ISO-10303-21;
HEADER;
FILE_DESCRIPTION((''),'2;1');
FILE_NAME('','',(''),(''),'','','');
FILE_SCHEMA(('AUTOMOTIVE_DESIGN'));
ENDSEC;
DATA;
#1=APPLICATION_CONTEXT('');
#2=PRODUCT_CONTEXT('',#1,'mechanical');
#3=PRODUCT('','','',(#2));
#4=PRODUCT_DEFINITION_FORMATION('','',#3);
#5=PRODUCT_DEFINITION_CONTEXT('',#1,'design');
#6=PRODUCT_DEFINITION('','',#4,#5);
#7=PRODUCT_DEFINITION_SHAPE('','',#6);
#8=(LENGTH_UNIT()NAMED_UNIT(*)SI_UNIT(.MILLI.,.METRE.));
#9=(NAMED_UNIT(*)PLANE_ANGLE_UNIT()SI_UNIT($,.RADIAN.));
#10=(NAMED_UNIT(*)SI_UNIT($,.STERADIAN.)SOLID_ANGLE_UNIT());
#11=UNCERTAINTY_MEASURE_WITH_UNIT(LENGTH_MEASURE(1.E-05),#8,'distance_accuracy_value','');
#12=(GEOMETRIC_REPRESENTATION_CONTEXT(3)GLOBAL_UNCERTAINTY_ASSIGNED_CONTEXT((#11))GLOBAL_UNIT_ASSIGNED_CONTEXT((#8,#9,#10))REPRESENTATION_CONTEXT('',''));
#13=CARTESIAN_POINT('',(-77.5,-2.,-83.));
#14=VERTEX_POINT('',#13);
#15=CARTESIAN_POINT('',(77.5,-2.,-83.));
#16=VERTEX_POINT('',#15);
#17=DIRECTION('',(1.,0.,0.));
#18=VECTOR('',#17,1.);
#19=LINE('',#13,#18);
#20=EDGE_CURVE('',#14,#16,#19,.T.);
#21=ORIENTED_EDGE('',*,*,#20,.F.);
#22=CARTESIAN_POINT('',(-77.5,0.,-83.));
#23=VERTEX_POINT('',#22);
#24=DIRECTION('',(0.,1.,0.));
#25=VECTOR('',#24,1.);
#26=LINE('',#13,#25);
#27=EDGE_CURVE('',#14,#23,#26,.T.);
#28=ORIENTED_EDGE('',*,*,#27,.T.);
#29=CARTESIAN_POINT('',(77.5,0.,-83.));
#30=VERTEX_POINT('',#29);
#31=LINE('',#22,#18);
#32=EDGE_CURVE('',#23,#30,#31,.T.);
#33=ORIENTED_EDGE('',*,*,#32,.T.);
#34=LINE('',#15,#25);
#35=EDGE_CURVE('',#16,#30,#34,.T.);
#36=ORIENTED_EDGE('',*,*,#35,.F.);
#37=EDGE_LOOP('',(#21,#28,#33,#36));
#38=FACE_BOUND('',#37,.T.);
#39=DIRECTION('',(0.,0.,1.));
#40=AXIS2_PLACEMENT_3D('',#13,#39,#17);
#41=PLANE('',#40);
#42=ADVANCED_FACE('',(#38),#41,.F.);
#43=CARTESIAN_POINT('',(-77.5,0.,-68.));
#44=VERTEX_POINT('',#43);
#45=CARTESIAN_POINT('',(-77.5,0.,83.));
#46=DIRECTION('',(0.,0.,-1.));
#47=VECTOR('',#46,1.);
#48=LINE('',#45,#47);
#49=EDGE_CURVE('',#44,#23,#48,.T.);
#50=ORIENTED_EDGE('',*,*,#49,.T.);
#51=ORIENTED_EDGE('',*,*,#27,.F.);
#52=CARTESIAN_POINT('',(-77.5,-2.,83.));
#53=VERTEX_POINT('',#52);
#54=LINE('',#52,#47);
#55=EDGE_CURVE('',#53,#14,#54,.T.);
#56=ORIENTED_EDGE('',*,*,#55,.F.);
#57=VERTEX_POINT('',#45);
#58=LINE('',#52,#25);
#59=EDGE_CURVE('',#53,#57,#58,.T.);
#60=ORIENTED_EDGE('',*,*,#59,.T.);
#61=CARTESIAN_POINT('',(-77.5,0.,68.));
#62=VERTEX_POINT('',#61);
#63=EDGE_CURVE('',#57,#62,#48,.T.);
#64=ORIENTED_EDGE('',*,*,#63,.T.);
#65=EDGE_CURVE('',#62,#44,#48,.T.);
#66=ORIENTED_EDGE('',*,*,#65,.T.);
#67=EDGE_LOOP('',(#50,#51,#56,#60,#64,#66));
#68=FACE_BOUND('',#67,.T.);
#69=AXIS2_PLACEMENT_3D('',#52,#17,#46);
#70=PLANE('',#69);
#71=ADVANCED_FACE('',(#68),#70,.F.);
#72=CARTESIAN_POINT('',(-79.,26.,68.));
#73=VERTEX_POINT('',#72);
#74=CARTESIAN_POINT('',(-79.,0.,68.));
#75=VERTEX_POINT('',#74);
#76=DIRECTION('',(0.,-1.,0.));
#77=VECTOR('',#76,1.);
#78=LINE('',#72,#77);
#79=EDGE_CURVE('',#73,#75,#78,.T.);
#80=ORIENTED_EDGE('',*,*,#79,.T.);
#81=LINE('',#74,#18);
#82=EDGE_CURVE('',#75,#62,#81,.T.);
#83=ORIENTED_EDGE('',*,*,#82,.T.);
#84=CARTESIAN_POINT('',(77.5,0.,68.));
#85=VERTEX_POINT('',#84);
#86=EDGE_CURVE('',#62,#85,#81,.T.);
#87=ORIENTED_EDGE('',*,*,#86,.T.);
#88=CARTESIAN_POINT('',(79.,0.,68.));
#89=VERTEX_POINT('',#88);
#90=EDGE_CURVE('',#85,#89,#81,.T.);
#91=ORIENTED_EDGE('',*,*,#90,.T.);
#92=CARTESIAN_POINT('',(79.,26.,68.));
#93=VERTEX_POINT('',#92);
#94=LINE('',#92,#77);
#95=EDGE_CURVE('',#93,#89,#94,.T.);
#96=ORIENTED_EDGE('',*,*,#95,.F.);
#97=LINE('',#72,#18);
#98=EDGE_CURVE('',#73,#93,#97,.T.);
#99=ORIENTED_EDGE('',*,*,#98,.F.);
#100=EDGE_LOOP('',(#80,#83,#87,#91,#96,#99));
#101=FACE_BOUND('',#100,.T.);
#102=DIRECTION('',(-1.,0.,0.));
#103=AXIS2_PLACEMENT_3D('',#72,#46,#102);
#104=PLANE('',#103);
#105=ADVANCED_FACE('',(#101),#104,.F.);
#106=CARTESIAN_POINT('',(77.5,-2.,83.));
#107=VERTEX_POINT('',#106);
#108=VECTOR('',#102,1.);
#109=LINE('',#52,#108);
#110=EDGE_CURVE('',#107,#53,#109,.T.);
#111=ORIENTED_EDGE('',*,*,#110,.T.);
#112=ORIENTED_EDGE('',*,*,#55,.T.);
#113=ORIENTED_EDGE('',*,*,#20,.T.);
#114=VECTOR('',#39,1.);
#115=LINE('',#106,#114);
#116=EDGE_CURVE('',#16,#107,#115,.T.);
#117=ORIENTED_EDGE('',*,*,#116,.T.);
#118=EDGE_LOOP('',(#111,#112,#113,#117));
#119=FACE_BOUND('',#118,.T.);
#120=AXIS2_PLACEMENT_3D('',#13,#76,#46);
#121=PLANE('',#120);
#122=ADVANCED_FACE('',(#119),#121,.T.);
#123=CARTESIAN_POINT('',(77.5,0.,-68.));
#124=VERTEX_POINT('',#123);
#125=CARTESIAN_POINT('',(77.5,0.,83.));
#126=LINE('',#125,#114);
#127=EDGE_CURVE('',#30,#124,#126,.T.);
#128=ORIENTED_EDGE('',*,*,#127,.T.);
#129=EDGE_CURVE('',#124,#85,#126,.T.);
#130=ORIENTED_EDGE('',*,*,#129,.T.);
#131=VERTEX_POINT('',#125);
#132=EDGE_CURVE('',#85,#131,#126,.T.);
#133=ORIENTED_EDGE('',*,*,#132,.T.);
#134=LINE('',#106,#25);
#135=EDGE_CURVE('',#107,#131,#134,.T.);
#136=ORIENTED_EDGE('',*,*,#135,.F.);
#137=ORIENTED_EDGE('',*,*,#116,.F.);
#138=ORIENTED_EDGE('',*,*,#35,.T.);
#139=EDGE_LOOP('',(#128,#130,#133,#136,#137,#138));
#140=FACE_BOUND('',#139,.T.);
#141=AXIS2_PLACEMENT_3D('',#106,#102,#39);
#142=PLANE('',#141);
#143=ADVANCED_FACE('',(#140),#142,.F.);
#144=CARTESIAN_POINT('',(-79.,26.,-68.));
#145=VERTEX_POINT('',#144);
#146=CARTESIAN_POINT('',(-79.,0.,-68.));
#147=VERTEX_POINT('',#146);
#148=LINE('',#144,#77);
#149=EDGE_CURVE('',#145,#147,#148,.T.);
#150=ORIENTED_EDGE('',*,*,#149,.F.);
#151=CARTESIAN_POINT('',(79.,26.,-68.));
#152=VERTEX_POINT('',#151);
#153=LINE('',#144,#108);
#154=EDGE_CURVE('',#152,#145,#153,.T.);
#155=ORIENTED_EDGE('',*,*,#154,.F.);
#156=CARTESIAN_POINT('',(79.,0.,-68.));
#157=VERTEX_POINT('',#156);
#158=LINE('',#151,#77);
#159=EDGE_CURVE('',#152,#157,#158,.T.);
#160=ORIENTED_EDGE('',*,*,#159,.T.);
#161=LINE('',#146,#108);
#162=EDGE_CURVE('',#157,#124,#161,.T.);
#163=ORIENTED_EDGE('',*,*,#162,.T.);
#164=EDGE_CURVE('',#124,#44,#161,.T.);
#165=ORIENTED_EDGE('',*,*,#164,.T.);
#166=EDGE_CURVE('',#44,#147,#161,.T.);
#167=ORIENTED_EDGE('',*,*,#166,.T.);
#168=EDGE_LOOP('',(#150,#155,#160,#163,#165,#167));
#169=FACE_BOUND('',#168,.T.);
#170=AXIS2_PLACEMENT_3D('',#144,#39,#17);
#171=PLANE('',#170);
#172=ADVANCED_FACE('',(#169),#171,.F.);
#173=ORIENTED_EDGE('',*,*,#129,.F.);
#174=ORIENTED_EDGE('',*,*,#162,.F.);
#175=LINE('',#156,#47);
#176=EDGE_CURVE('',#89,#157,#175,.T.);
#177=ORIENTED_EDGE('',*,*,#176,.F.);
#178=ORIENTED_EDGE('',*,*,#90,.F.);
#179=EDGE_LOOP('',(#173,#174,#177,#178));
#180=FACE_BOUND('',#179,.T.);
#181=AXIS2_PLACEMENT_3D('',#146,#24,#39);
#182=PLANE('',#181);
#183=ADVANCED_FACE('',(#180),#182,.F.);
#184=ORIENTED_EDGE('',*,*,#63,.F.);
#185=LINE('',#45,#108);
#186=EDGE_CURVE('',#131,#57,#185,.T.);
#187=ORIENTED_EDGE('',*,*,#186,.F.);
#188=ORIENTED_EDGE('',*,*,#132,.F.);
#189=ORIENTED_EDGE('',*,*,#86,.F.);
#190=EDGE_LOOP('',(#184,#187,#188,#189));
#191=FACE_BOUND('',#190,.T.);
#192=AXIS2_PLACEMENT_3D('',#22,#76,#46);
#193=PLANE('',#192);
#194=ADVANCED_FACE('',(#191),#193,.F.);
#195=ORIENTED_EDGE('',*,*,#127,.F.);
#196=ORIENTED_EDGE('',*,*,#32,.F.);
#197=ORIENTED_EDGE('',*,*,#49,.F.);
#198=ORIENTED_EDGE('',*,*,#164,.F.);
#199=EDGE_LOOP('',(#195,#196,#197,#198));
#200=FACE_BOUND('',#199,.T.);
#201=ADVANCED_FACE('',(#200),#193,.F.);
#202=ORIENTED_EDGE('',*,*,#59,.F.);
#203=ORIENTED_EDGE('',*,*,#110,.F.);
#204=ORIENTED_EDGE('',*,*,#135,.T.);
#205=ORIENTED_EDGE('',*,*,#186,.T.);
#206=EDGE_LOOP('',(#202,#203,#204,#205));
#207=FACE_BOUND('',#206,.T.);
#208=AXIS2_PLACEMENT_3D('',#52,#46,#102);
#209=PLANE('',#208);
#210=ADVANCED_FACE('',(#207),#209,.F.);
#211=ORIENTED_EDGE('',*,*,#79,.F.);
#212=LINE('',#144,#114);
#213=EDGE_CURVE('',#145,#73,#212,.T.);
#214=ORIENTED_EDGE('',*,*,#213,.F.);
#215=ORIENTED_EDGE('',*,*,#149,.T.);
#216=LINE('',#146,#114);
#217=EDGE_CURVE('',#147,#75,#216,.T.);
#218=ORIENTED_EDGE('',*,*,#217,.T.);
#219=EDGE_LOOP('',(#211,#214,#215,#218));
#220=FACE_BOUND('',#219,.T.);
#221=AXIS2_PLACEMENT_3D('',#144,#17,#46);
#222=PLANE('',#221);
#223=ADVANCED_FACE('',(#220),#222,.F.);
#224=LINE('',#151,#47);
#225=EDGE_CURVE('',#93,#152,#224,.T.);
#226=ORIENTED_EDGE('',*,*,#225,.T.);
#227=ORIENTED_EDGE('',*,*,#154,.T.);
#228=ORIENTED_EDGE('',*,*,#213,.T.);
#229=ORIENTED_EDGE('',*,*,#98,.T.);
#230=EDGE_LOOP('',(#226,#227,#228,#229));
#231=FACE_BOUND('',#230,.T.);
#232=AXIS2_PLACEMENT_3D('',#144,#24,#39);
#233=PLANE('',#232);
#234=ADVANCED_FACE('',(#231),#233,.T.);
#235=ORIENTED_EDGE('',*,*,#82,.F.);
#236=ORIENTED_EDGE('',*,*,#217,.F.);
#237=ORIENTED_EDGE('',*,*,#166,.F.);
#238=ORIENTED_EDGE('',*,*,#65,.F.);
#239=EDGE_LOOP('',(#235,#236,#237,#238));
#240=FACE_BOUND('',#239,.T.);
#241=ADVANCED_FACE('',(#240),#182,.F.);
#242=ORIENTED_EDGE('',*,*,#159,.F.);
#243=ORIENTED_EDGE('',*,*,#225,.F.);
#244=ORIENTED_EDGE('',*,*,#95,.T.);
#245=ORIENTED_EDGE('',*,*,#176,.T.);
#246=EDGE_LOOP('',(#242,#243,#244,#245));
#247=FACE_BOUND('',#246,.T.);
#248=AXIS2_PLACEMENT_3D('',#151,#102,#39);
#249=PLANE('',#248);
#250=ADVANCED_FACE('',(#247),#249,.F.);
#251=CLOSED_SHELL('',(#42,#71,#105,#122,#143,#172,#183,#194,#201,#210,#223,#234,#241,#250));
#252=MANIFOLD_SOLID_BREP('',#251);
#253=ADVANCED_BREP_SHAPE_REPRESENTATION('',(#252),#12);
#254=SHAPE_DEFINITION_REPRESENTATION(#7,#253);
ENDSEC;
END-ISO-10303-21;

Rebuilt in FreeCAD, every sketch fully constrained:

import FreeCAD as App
import Part
import Sketcher

doc = App.newDocument("Part")
params = doc.addObject("Spreadsheet::Sheet", "Params")
for row, (alias, value) in enumerate([
    ("sketch1_width", "158 mm"),
    ("sketch1_height", "136 mm"),
    ("pad1_length", "26 mm"),
    ("sketch2_width", "155 mm"),
    ("sketch2_height", "166 mm"),
    ("pad2_length", "2 mm"),
], start=1):
    params.set(f"A{row}", alias)
    params.set(f"B{row}", "=" + value)
    params.setAlias(f"B{row}", alias)

body = doc.addObject("PartDesign::Body", "Body")

sketch1 = body.newObject("Sketcher::SketchObject", "Sketch")
sketch1.AttachmentSupport = (doc.getObject("XZ_Plane"), [""])
sketch1.MapMode = "FlatFace"
sketch1.addGeometry(Part.LineSegment(App.Vector(-79, -68, 0), App.Vector(-79, 68, 0)), False)
sketch1.addGeometry(Part.LineSegment(App.Vector(-79, 68, 0), App.Vector(79, 68, 0)), False)
sketch1.addGeometry(Part.LineSegment(App.Vector(79, 68, 0), App.Vector(79, -68, 0)), False)
sketch1.addGeometry(Part.LineSegment(App.Vector(79, -68, 0), App.Vector(-79, -68, 0)), False)
sketch1.addConstraint(Sketcher.Constraint("Coincident", 0, 2, 1, 1))
sketch1.addConstraint(Sketcher.Constraint("Coincident", 1, 2, 2, 1))
sketch1.addConstraint(Sketcher.Constraint("Coincident", 2, 2, 3, 1))
sketch1.addConstraint(Sketcher.Constraint("Coincident", 3, 2, 0, 1))
sketch1.addConstraint(Sketcher.Constraint("Vertical", 0))
sketch1.addConstraint(Sketcher.Constraint("Horizontal", 1))
sketch1.addConstraint(Sketcher.Constraint("Vertical", 2))
sketch1.addConstraint(Sketcher.Constraint("Horizontal", 3))
sketch1.addConstraint(Sketcher.Constraint("Symmetric", 0, 2, 2, 2, -1, 1))
sketch1.addConstraint(Sketcher.Constraint("DistanceX", 1, 1, 1, 2, 158.0))
sketch1.addConstraint(Sketcher.Constraint("DistanceY", 0, 1, 0, 2, 136.0))
sketch1.setExpression("Constraints[9]", "Params.sketch1_width")
sketch1.setExpression("Constraints[10]", "Params.sketch1_height")
pad1 = body.newObject("PartDesign::Pad", "Pad")
pad1.Profile = sketch1
pad1.setExpression("Length", "Params.pad1_length")
pad1.Reversed = True

sketch2 = body.newObject("Sketcher::SketchObject", "Sketch001")
sketch2.AttachmentSupport = (doc.getObject("XZ_Plane"), [""])
sketch2.MapMode = "FlatFace"
sketch2.addGeometry(Part.LineSegment(App.Vector(-78, 83, 0), App.Vector(-78, -83, 0)), False)
sketch2.addGeometry(Part.LineSegment(App.Vector(-78, -83, 0), App.Vector(78, -83, 0)), False)
sketch2.addGeometry(Part.LineSegment(App.Vector(78, -83, 0), App.Vector(78, 83, 0)), False)
sketch2.addGeometry(Part.LineSegment(App.Vector(78, 83, 0), App.Vector(-78, 83, 0)), False)
sketch2.addConstraint(Sketcher.Constraint("Coincident", 0, 2, 1, 1))
sketch2.addConstraint(Sketcher.Constraint("Coincident", 1, 2, 2, 1))
sketch2.addConstraint(Sketcher.Constraint("Coincident", 2, 2, 3, 1))
sketch2.addConstraint(Sketcher.Constraint("Coincident", 3, 2, 0, 1))
sketch2.addConstraint(Sketcher.Constraint("Vertical", 0))
sketch2.addConstraint(Sketcher.Constraint("Horizontal", 1))
sketch2.addConstraint(Sketcher.Constraint("Vertical", 2))
sketch2.addConstraint(Sketcher.Constraint("Horizontal", 3))
sketch2.addConstraint(Sketcher.Constraint("Symmetric", 0, 2, 2, 2, -1, 1))
sketch2.addConstraint(Sketcher.Constraint("DistanceX", 1, 1, 1, 2, 155.0))
sketch2.addConstraint(Sketcher.Constraint("DistanceY", 0, 2, 0, 1, 166.0))
sketch2.setExpression("Constraints[9]", "Params.sketch2_width")
sketch2.setExpression("Constraints[10]", "Params.sketch2_height")
pad2 = body.newObject("PartDesign::Pad", "Pad001")
pad2.Profile = sketch2
pad2.setExpression("Length", "Params.pad2_length")

doc.recompute()
